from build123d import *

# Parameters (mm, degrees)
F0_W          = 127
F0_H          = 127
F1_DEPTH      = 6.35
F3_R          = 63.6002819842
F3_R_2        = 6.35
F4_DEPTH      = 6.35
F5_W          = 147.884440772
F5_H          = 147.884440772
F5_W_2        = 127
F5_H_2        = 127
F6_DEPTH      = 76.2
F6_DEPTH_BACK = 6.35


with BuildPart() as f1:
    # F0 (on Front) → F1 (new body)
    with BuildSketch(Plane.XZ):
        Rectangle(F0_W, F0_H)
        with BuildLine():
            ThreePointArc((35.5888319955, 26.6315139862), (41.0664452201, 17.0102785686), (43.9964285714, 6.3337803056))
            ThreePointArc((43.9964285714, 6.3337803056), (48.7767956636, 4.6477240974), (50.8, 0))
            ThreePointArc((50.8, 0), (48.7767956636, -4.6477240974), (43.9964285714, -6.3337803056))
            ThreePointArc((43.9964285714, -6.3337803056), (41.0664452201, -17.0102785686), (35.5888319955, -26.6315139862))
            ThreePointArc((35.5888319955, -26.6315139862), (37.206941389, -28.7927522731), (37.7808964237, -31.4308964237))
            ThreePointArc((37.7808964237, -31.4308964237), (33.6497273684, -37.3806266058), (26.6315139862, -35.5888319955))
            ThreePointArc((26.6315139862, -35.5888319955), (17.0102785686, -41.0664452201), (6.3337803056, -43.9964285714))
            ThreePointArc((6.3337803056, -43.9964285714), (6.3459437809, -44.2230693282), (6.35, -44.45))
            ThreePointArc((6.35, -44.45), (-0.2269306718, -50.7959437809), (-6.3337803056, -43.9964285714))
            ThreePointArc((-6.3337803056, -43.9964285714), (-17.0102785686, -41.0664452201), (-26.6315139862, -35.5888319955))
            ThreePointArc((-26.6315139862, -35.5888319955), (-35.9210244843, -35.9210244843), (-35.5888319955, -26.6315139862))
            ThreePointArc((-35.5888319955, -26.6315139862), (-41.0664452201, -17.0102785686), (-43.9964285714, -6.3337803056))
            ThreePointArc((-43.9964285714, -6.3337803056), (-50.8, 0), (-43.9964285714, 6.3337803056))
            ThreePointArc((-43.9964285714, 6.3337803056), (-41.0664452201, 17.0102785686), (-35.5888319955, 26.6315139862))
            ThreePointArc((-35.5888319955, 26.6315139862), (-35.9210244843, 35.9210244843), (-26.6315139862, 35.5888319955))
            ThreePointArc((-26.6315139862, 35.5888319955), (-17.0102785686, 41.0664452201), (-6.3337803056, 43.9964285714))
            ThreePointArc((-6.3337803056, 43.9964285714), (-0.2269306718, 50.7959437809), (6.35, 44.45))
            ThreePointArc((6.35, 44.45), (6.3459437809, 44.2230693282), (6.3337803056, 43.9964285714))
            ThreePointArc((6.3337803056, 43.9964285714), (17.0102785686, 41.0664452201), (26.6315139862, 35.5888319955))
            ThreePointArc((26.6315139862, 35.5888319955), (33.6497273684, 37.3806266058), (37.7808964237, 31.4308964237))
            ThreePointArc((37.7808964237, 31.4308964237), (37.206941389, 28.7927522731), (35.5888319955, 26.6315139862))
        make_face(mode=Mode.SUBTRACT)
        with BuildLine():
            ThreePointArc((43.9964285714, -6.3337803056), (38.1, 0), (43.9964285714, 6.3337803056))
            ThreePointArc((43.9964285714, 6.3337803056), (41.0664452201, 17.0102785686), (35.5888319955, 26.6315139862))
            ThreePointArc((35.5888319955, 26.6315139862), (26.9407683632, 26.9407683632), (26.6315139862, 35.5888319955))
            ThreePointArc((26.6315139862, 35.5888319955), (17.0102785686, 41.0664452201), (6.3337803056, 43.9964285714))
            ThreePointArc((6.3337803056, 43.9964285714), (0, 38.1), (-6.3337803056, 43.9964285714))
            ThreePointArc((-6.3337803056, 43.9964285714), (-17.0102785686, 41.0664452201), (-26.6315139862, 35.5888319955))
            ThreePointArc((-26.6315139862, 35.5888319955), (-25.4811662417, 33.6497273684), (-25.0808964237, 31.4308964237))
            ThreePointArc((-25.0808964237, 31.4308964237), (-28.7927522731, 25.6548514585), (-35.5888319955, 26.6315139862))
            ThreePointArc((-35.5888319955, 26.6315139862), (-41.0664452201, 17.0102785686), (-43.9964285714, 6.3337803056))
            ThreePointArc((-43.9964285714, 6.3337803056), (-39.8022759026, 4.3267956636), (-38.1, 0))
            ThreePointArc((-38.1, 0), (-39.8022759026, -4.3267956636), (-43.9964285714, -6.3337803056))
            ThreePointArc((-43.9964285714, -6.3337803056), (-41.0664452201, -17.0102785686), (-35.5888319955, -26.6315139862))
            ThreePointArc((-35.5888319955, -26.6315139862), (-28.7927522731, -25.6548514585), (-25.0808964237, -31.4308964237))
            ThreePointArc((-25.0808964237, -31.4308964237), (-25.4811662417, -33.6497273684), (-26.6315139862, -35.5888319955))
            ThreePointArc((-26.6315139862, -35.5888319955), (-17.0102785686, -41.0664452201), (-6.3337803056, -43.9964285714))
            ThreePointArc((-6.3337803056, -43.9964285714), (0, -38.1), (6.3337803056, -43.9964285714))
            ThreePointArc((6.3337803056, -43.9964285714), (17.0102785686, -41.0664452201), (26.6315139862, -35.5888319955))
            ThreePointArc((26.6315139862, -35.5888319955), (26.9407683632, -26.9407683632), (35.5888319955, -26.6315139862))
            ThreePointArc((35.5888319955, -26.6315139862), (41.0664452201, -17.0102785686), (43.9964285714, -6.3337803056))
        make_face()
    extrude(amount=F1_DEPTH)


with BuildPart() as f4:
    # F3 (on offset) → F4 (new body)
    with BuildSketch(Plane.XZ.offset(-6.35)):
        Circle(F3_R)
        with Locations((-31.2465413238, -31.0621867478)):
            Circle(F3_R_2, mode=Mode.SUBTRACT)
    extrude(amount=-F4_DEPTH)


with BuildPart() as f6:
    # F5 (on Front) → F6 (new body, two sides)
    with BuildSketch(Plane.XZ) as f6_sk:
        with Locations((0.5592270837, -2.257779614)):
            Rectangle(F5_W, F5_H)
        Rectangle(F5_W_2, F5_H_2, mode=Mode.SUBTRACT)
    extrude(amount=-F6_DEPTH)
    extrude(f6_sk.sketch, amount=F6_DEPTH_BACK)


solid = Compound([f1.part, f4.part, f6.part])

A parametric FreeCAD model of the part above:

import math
import FreeCAD as App
import Part
import Sketcher

V = App.Vector
Q = App.Units.Quantity


def add_polygon(sketch, points):
    """Adds a closed chain of lines whose ends are joined by coincident constraints."""
    first, n = sketch.GeometryCount, len(points)
    for a, b in zip(points, points[1:] + points[:1]):
        sketch.addGeometry(Part.LineSegment(App.Vector(*a, 0), App.Vector(*b, 0)), False)
    for i in range(n):
        sketch.addConstraint(Sketcher.Constraint("Coincident", first + i, 2, first + (i + 1) % n, 1))

doc = App.newDocument("Part")
body = doc.addObject("PartDesign::Body", "Body")

# Sketch on XZ plane
sketch1 = body.newObject("Sketcher::SketchObject", "Sketch")
sketch1.AttachmentSupport = (doc.getObject("XZ_Plane"), [""])
sketch1.MapMode = "FlatFace"
add_polygon(sketch1, [(-63.5, 63.5), (-63.5, -63.5), (63.5, -63.5), (63.5, 63.5)])  # lines 0-3
sketch1.addGeometry(Part.ArcOfCircle(Part.Circle(V(31.430896, 31.430896, 0), V(0, 0, 1), 6.35), math.radians(-49.096044), math.radians(0)), False)  # 4
sketch1.addGeometry(Part.ArcOfCircle(Part.Circle(V(31.430896, 31.430896, 0), V(0, 0, 1), 6.35), math.radians(139.096044), math.radians(310.903956)), False)  # 5
sketch1.addGeometry(Part.ArcOfCircle(Part.Circle(V(31.430896, 31.430896, 0), V(0, 0, 1), 6.35), math.radians(0), math.radians(139.096044)), False)  # 6
sketch1.addGeometry(Part.ArcOfCircle(Part.Circle(V(0, 44.45, 0), V(0, 0, 1), 6.35), math.radians(-4.096044), math.radians(0)), False)  # 7
sketch1.addGeometry(Part.ArcOfCircle(Part.Circle(V(0, 44.45, 0), V(0, 0, 1), 6.35), math.radians(-175.903956), math.radians(-4.096044)), False)  # 8
sketch1.addGeometry(Part.ArcOfCircle(Part.Circle(V(0, 44.45, 0), V(0, 0, 1), 6.35), math.radians(0), math.radians(184.096044)), False)  # 9
sketch1.addGeometry(Part.ArcOfCircle(Part.Circle(V(-31.430896, 31.430896, 0), V(0, 0, 1), 6.35), math.radians(40.903956), math.radians(229.096044)), False)  # 10
sketch1.addGeometry(Part.ArcOfCircle(Part.Circle(V(-31.430896, 31.430896, 0), V(0, 0, 1), 6.35), math.radians(0), math.radians(40.903956)), False)  # 11
sketch1.addGeometry(Part.ArcOfCircle(Part.Circle(V(-31.430896, 31.430896, 0), V(0, 0, 1), 6.35), math.radians(-130.903956), math.radians(0)), False)  # 12
sketch1.addGeometry(Part.ArcOfCircle(Part.Circle(V(-44.45, 0, 0), V(0, 0, 1), 6.35), math.radians(85.903956), math.radians(274.096044)), False)  # 13
sketch1.addGeometry(Part.ArcOfCircle(Part.Circle(V(-44.45, 0, 0), V(0, 0, 1), 6.35), math.radians(0), math.radians(85.903956)), False)  # 14
sketch1.addGeometry(Part.ArcOfCircle(Part.Circle(V(-44.45, 0, 0), V(0, 0, 1), 6.35), math.radians(-85.903956), math.radians(0)), False)  # 15
sketch1.addGeometry(Part.ArcOfCircle(Part.Circle(V(-31.430896, -31.430896, 0), V(0, 0, 1), 6.35), math.radians(130.903956), math.radians(319.096044)), False)  # 16
sketch1.addGeometry(Part.ArcOfCircle(Part.Circle(V(-31.430896, -31.430896, 0), V(0, 0, 1), 6.35), math.radians(0), math.radians(130.903956)), False)  # 17
sketch1.addGeometry(Part.ArcOfCircle(Part.Circle(V(-31.430896, -31.430896, 0), V(0, 0, 1), 6.35), math.radians(-40.903956), math.radians(0)), False)  # 18
sketch1.addGeometry(Part.ArcOfCircle(Part.Circle(V(0, -44.45, 0), V(0, 0, 1), 6.35), math.radians(175.903956), math.radians(360)), False)  # 19
sketch1.addGeometry(Part.ArcOfCircle(Part.Circle(V(0, -44.45, 0), V(0, 0, 1), 6.35), math.radians(4.096044), math.radians(175.903956)), False)  # 20
sketch1.addGeometry(Part.ArcOfCircle(Part.Circle(V(0, -44.45, 0), V(0, 0, 1), 6.35), math.radians(0), math.radians(4.096044)), False)  # 21
sketch1.addGeometry(Part.ArcOfCircle(Part.Circle(V(31.430896, -31.430896, 0), V(0, 0, 1), 6.35), math.radians(-139.096044), math.radians(0)), False)  # 22
sketch1.addGeometry(Part.ArcOfCircle(Part.Circle(V(31.430896, -31.430896, 0), V(0, 0, 1), 6.35), math.radians(49.096044), math.radians(220.903956)), False)  # 23
sketch1.addGeometry(Part.ArcOfCircle(Part.Circle(V(31.430896, -31.430896, 0), V(0, 0, 1), 6.35), math.radians(0), math.radians(49.096044)), False)  # 24
sketch1.addGeometry(Part.ArcOfCircle(Part.Circle(V(44.45, 0, 0), V(0, 0, 1), 6.35), math.radians(-94.096044), math.radians(0)), False)  # 25
sketch1.addGeometry(Part.ArcOfCircle(Part.Circle(V(44.45, 0, 0), V(0, 0, 1), 6.35), math.radians(94.096044), math.radians(265.903956)), False)  # 26
sketch1.addGeometry(Part.ArcOfCircle(Part.Circle(V(44.45, 0, 0), V(0, 0, 1), 6.35), math.radians(0), math.radians(94.096044)), False)  # 27
sketch1.addConstraint(Sketcher.Constraint("Tangent", 4, 1, 5, 2))
sketch1.addConstraint(Sketcher.Constraint("Tangent", 5, 1, 6, 2))
sketch1.addConstraint(Sketcher.Constraint("Tangent", 6, 1, 4, 2))
sketch1.addConstraint(Sketcher.Constraint("Tangent", 7, 1, 8, 2))
sketch1.addConstraint(Sketcher.Constraint("Tangent", 8, 1, 9, 2))
sketch1.addConstraint(Sketcher.Constraint("Tangent", 9, 1, 7, 2))
sketch1.addConstraint(Sketcher.Constraint("Tangent", 10, 1, 11, 2))
sketch1.addConstraint(Sketcher.Constraint("Tangent", 11, 1, 12, 2))
sketch1.addConstraint(Sketcher.Constraint("Tangent", 12, 1, 10, 2))
sketch1.addConstraint(Sketcher.Constraint("Tangent", 13, 1, 14, 2))
sketch1.addConstraint(Sketcher.Constraint("Tangent", 14, 1, 15, 2))
sketch1.addConstraint(Sketcher.Constraint("Tangent", 15, 1, 13, 2))
sketch1.addConstraint(Sketcher.Constraint("Tangent", 16, 1, 17, 2))
sketch1.addConstraint(Sketcher.Constraint("Tangent", 17, 1, 18, 2))
sketch1.addConstraint(Sketcher.Constraint("Tangent", 18, 1, 16, 2))
sketch1.addConstraint(Sketcher.Constraint("Tangent", 19, 1, 20, 2))
sketch1.addConstraint(Sketcher.Constraint("Tangent", 20, 1, 21, 2))
sketch1.addConstraint(Sketcher.Constraint("Tangent", 21, 1, 19, 2))
sketch1.addConstraint(Sketcher.Constraint("Tangent", 22, 1, 23, 2))
sketch1.addConstraint(Sketcher.Constraint("Tangent", 23, 1, 24, 2))
sketch1.addConstraint(Sketcher.Constraint("Tangent", 24, 1, 22, 2))
sketch1.addConstraint(Sketcher.Constraint("Tangent", 25, 1, 26, 2))
sketch1.addConstraint(Sketcher.Constraint("Tangent", 26, 1, 27, 2))
sketch1.addConstraint(Sketcher.Constraint("Tangent", 27, 1, 25, 2))
sketch1.addConstraint(Sketcher.Constraint("Vertical", 0))
sketch1.addConstraint(Sketcher.Constraint("Horizontal", 1))
sketch1.addConstraint(Sketcher.Constraint("Vertical", 2))
sketch1.addConstraint(Sketcher.Constraint("Horizontal", 3))
sketch1.addConstraint(Sketcher.Constraint("Equal", 6, 7))
sketch1.addConstraint(Sketcher.Constraint("Equal", 9, 10))
sketch1.addConstraint(Sketcher.Constraint("Equal", 12, 13))
sketch1.addConstraint(Sketcher.Constraint("Equal", 15, 16))
sketch1.addConstraint(Sketcher.Constraint("Equal", 18, 19))
sketch1.addConstraint(Sketcher.Constraint("Equal", 21, 22))
sketch1.addConstraint(Sketcher.Constraint("Equal", 24, 25))
sketch1.addConstraint(Sketcher.Constraint("Symmetric", 4, 3, 16, 3, -1, 1))
sketch1.addConstraint(Sketcher.Constraint("Symmetric", 7, 3, 19, 3, -1, 1))
sketch1.addConstraint(Sketcher.Constraint("Symmetric", 10, 3, 22, 3, -1, 1))
sketch1.addConstraint(Sketcher.Constraint("Symmetric", 13, 3, 25, 3, -1, 1))
sketch1.addConstraint(Sketcher.Constraint("Symmetric", 0, 2, 2, 2, -1, 1))
sketch1.addConstraint(Sketcher.Constraint("Symmetric", 4, 3, 10, 3, -2))
sketch1.addConstraint(Sketcher.Constraint("Symmetric", 7, 1, 8, 1, -2))
sketch1.addConstraint(Sketcher.Constraint("Symmetric", 15, 1, 25, 1, -2))
sketch1.addConstraint(Sketcher.Constraint("PointOnObject", 14, 1, -1))
sketch1.addConstraint(Sketcher.Constraint("PointOnObject", 27, 1, -1))
sketch1.addConstraint(Sketcher.Constraint("Horizontal", 12, 3, 6, 1))
sketch1.addConstraint(Sketcher.Constraint("Horizontal", 8, 3, 9, 1))
sketch1.addConstraint(Sketcher.Constraint("Horizontal", 5, 1, 10, 1))
sketch1.addConstraint(Sketcher.Constraint("Horizontal", 6, 1, 11, 1))
sketch1.addConstraint(Sketcher.Constraint("Horizontal", 4, 1, 12, 1))
sketch1.addConstraint(Sketcher.Constraint("Horizontal", 24, 3, 17, 1))
sketch1.addConstraint(Sketcher.Constraint("Horizontal", 19, 1, 20, 1))
sketch1.addConstraint(Sketcher.Constraint("Horizontal", 20, 3, 21, 1))
sketch1.addConstraint(Sketcher.Constraint("Horizontal", 18, 1, 22, 1))
sketch1.addConstraint(Sketcher.Constraint("Horizontal", 16, 1, 23, 1))
sketch1.addConstraint(Sketcher.Constraint("Horizontal", 17, 1, 24, 1))
sketch1.addConstraint(Sketcher.Constraint("Horizontal", 13, 1, 26, 1))
sketch1.addConstraint(Sketcher.Constraint("Vertical", 13, 1, 15, 1))
sketch1.addConstraint(Sketcher.Constraint("Vertical", 12, 1, 16, 1))
sketch1.addConstraint(Sketcher.Constraint("Vertical", 10, 1, 18, 1))
sketch1.addConstraint(Sketcher.Constraint("Vertical", 8, 1, 19, 1))
sketch1.addConstraint(Sketcher.Constraint("Equal", 3, 0))
sketch1.addConstraint(Sketcher.Constraint("DistanceX", 1, 1, 1, 2, Q("5 in")))
sketch1.addConstraint(Sketcher.Constraint("Radius", 4, Q("0.25 in")))
sketch1.addConstraint(Sketcher.Constraint("DistanceX", -1, 1, 27, 1, Q("2 in")))
sketch1.addConstraint(Sketcher.Constraint("DistanceY", -1, 1, 7, 3, Q("1.75 in")))
sketch1.addConstraint(Sketcher.Constraint("DistanceX", -1, 1, 4, 1, Q("35.588832 mm")))
sketch1.addConstraint(Sketcher.Constraint("DistanceY", -1, 1, 5, 1, Q("35.588832 mm")))
sketch1.addConstraint(Sketcher.Constraint("DistanceX", -1, 1, 7, 1, Q("6.33378 mm")))
sketch1.addConstraint(Sketcher.Constraint("DistanceX", 13, 1, -1, 1, Q("43.996429 mm")))
sketch1.addConstraint(Sketcher.Constraint("DistanceX", 5, 1, 4, 1, Q("8.957318 mm")))
sketch1.addConstraint(Sketcher.Constraint("DistanceY", 4, 1, 5, 1, Q("8.957318 mm")))
pad1 = body.newObject("PartDesign::Pad", "Pad")
pad1.Profile = sketch1
pad1.Length = Q("0.25 in")
body2 = doc.addObject("PartDesign::Body", "Body001")

# Sketch on XZ plane
sketch2 = body2.newObject("Sketcher::SketchObject", "Sketch001")
sketch2.AttachmentSupport = (doc.getObject("XZ_Plane001"), [""])
sketch2.MapMode = "FlatFace"
sketch2.AttachmentOffset = App.Placement(V(0, 0, -0.25 * 25.4), App.Rotation())
sketch2.addGeometry(Part.Circle(V(0, 0, 0), V(0, 0, 1), 63.600282), False)
sketch2.addGeometry(Part.Circle(V(-31.246541, -31.062187, 0), V(0, 0, 1), 6.35), False)
sketch2.addConstraint(Sketcher.Constraint("Coincident", 0, 3, -1, 1))
sketch2.addConstraint(Sketcher.Constraint("Diameter", 1, Q("0.5 in")))
sketch2.addConstraint(Sketcher.Constraint("Diameter", 0, Q("127.200564 mm")))
sketch2.addConstraint(Sketcher.Constraint("DistanceX", 1, 3, -1, 1, Q("31.246541 mm")))
sketch2.addConstraint(Sketcher.Constraint("DistanceY", 1, 3, -1, 1, Q("31.062187 mm")))
pad2 = body2.newObject("PartDesign::Pad", "Pad001")
pad2.Profile = sketch2
pad2.Length = Q("0.25 in")
pad2.Reversed = True
body3 = doc.addObject("PartDesign::Body", "Body002")

# Sketch on XZ plane
sketch3 = body3.newObject("Sketcher::SketchObject", "Sketch002")
sketch3.AttachmentSupport = (doc.getObject("XZ_Plane002"), [""])
sketch3.MapMode = "FlatFace"
add_polygon(sketch3, [(-73.382993, 71.684441), (-73.382993, -76.2), (74.501447, -76.2), (74.501447, 71.684441)])  # lines 0-3
add_polygon(sketch3, [(63.5, -63.5), (-63.5, -63.5), (-63.5, 63.5), (63.5, 63.5)])  # lines 4-7
sketch3.addConstraint(Sketcher.Constraint("Vertical", 0))
sketch3.addConstraint(Sketcher.Constraint("Horizontal", 1))
sketch3.addConstraint(Sketcher.Constraint("Vertical", 2))
sketch3.addConstraint(Sketcher.Constraint("Horizontal", 3))
sketch3.addConstraint(Sketcher.Constraint("Horizontal", 4))
sketch3.addConstraint(Sketcher.Constraint("Vertical", 5))
sketch3.addConstraint(Sketcher.Constraint("Horizontal", 6))
sketch3.addConstraint(Sketcher.Constraint("Vertical", 7))
sketch3.addConstraint(Sketcher.Constraint("Symmetric", 4, 2, 6, 2, -1, 1))
sketch3.addConstraint(Sketcher.Constraint("Equal", 3, 0))
sketch3.addConstraint(Sketcher.Constraint("Equal", 6, 5))
sketch3.addConstraint(Sketcher.Constraint("DistanceX", 4, 2, 4, 1, Q("5 in")))
sketch3.addConstraint(Sketcher.Constraint("DistanceY", 0, 2, -1, 1, Q("3 in")))
sketch3.addConstraint(Sketcher.Constraint("DistanceX", 1, 1, 1, 2, Q("147.884441 mm")))
sketch3.addConstraint(Sketcher.Constraint("DistanceX", 0, 2, -1, 1, Q("73.382993 mm")))
pad3 = body3.newObject("PartDesign::Pad", "Pad002")
pad3.Profile = sketch3
pad3.Type = "TwoLengths"
pad3.Length = Q("3 in")
pad3.Length2 = Q("0.25 in")
pad3.Reversed = True

doc.recompute()
